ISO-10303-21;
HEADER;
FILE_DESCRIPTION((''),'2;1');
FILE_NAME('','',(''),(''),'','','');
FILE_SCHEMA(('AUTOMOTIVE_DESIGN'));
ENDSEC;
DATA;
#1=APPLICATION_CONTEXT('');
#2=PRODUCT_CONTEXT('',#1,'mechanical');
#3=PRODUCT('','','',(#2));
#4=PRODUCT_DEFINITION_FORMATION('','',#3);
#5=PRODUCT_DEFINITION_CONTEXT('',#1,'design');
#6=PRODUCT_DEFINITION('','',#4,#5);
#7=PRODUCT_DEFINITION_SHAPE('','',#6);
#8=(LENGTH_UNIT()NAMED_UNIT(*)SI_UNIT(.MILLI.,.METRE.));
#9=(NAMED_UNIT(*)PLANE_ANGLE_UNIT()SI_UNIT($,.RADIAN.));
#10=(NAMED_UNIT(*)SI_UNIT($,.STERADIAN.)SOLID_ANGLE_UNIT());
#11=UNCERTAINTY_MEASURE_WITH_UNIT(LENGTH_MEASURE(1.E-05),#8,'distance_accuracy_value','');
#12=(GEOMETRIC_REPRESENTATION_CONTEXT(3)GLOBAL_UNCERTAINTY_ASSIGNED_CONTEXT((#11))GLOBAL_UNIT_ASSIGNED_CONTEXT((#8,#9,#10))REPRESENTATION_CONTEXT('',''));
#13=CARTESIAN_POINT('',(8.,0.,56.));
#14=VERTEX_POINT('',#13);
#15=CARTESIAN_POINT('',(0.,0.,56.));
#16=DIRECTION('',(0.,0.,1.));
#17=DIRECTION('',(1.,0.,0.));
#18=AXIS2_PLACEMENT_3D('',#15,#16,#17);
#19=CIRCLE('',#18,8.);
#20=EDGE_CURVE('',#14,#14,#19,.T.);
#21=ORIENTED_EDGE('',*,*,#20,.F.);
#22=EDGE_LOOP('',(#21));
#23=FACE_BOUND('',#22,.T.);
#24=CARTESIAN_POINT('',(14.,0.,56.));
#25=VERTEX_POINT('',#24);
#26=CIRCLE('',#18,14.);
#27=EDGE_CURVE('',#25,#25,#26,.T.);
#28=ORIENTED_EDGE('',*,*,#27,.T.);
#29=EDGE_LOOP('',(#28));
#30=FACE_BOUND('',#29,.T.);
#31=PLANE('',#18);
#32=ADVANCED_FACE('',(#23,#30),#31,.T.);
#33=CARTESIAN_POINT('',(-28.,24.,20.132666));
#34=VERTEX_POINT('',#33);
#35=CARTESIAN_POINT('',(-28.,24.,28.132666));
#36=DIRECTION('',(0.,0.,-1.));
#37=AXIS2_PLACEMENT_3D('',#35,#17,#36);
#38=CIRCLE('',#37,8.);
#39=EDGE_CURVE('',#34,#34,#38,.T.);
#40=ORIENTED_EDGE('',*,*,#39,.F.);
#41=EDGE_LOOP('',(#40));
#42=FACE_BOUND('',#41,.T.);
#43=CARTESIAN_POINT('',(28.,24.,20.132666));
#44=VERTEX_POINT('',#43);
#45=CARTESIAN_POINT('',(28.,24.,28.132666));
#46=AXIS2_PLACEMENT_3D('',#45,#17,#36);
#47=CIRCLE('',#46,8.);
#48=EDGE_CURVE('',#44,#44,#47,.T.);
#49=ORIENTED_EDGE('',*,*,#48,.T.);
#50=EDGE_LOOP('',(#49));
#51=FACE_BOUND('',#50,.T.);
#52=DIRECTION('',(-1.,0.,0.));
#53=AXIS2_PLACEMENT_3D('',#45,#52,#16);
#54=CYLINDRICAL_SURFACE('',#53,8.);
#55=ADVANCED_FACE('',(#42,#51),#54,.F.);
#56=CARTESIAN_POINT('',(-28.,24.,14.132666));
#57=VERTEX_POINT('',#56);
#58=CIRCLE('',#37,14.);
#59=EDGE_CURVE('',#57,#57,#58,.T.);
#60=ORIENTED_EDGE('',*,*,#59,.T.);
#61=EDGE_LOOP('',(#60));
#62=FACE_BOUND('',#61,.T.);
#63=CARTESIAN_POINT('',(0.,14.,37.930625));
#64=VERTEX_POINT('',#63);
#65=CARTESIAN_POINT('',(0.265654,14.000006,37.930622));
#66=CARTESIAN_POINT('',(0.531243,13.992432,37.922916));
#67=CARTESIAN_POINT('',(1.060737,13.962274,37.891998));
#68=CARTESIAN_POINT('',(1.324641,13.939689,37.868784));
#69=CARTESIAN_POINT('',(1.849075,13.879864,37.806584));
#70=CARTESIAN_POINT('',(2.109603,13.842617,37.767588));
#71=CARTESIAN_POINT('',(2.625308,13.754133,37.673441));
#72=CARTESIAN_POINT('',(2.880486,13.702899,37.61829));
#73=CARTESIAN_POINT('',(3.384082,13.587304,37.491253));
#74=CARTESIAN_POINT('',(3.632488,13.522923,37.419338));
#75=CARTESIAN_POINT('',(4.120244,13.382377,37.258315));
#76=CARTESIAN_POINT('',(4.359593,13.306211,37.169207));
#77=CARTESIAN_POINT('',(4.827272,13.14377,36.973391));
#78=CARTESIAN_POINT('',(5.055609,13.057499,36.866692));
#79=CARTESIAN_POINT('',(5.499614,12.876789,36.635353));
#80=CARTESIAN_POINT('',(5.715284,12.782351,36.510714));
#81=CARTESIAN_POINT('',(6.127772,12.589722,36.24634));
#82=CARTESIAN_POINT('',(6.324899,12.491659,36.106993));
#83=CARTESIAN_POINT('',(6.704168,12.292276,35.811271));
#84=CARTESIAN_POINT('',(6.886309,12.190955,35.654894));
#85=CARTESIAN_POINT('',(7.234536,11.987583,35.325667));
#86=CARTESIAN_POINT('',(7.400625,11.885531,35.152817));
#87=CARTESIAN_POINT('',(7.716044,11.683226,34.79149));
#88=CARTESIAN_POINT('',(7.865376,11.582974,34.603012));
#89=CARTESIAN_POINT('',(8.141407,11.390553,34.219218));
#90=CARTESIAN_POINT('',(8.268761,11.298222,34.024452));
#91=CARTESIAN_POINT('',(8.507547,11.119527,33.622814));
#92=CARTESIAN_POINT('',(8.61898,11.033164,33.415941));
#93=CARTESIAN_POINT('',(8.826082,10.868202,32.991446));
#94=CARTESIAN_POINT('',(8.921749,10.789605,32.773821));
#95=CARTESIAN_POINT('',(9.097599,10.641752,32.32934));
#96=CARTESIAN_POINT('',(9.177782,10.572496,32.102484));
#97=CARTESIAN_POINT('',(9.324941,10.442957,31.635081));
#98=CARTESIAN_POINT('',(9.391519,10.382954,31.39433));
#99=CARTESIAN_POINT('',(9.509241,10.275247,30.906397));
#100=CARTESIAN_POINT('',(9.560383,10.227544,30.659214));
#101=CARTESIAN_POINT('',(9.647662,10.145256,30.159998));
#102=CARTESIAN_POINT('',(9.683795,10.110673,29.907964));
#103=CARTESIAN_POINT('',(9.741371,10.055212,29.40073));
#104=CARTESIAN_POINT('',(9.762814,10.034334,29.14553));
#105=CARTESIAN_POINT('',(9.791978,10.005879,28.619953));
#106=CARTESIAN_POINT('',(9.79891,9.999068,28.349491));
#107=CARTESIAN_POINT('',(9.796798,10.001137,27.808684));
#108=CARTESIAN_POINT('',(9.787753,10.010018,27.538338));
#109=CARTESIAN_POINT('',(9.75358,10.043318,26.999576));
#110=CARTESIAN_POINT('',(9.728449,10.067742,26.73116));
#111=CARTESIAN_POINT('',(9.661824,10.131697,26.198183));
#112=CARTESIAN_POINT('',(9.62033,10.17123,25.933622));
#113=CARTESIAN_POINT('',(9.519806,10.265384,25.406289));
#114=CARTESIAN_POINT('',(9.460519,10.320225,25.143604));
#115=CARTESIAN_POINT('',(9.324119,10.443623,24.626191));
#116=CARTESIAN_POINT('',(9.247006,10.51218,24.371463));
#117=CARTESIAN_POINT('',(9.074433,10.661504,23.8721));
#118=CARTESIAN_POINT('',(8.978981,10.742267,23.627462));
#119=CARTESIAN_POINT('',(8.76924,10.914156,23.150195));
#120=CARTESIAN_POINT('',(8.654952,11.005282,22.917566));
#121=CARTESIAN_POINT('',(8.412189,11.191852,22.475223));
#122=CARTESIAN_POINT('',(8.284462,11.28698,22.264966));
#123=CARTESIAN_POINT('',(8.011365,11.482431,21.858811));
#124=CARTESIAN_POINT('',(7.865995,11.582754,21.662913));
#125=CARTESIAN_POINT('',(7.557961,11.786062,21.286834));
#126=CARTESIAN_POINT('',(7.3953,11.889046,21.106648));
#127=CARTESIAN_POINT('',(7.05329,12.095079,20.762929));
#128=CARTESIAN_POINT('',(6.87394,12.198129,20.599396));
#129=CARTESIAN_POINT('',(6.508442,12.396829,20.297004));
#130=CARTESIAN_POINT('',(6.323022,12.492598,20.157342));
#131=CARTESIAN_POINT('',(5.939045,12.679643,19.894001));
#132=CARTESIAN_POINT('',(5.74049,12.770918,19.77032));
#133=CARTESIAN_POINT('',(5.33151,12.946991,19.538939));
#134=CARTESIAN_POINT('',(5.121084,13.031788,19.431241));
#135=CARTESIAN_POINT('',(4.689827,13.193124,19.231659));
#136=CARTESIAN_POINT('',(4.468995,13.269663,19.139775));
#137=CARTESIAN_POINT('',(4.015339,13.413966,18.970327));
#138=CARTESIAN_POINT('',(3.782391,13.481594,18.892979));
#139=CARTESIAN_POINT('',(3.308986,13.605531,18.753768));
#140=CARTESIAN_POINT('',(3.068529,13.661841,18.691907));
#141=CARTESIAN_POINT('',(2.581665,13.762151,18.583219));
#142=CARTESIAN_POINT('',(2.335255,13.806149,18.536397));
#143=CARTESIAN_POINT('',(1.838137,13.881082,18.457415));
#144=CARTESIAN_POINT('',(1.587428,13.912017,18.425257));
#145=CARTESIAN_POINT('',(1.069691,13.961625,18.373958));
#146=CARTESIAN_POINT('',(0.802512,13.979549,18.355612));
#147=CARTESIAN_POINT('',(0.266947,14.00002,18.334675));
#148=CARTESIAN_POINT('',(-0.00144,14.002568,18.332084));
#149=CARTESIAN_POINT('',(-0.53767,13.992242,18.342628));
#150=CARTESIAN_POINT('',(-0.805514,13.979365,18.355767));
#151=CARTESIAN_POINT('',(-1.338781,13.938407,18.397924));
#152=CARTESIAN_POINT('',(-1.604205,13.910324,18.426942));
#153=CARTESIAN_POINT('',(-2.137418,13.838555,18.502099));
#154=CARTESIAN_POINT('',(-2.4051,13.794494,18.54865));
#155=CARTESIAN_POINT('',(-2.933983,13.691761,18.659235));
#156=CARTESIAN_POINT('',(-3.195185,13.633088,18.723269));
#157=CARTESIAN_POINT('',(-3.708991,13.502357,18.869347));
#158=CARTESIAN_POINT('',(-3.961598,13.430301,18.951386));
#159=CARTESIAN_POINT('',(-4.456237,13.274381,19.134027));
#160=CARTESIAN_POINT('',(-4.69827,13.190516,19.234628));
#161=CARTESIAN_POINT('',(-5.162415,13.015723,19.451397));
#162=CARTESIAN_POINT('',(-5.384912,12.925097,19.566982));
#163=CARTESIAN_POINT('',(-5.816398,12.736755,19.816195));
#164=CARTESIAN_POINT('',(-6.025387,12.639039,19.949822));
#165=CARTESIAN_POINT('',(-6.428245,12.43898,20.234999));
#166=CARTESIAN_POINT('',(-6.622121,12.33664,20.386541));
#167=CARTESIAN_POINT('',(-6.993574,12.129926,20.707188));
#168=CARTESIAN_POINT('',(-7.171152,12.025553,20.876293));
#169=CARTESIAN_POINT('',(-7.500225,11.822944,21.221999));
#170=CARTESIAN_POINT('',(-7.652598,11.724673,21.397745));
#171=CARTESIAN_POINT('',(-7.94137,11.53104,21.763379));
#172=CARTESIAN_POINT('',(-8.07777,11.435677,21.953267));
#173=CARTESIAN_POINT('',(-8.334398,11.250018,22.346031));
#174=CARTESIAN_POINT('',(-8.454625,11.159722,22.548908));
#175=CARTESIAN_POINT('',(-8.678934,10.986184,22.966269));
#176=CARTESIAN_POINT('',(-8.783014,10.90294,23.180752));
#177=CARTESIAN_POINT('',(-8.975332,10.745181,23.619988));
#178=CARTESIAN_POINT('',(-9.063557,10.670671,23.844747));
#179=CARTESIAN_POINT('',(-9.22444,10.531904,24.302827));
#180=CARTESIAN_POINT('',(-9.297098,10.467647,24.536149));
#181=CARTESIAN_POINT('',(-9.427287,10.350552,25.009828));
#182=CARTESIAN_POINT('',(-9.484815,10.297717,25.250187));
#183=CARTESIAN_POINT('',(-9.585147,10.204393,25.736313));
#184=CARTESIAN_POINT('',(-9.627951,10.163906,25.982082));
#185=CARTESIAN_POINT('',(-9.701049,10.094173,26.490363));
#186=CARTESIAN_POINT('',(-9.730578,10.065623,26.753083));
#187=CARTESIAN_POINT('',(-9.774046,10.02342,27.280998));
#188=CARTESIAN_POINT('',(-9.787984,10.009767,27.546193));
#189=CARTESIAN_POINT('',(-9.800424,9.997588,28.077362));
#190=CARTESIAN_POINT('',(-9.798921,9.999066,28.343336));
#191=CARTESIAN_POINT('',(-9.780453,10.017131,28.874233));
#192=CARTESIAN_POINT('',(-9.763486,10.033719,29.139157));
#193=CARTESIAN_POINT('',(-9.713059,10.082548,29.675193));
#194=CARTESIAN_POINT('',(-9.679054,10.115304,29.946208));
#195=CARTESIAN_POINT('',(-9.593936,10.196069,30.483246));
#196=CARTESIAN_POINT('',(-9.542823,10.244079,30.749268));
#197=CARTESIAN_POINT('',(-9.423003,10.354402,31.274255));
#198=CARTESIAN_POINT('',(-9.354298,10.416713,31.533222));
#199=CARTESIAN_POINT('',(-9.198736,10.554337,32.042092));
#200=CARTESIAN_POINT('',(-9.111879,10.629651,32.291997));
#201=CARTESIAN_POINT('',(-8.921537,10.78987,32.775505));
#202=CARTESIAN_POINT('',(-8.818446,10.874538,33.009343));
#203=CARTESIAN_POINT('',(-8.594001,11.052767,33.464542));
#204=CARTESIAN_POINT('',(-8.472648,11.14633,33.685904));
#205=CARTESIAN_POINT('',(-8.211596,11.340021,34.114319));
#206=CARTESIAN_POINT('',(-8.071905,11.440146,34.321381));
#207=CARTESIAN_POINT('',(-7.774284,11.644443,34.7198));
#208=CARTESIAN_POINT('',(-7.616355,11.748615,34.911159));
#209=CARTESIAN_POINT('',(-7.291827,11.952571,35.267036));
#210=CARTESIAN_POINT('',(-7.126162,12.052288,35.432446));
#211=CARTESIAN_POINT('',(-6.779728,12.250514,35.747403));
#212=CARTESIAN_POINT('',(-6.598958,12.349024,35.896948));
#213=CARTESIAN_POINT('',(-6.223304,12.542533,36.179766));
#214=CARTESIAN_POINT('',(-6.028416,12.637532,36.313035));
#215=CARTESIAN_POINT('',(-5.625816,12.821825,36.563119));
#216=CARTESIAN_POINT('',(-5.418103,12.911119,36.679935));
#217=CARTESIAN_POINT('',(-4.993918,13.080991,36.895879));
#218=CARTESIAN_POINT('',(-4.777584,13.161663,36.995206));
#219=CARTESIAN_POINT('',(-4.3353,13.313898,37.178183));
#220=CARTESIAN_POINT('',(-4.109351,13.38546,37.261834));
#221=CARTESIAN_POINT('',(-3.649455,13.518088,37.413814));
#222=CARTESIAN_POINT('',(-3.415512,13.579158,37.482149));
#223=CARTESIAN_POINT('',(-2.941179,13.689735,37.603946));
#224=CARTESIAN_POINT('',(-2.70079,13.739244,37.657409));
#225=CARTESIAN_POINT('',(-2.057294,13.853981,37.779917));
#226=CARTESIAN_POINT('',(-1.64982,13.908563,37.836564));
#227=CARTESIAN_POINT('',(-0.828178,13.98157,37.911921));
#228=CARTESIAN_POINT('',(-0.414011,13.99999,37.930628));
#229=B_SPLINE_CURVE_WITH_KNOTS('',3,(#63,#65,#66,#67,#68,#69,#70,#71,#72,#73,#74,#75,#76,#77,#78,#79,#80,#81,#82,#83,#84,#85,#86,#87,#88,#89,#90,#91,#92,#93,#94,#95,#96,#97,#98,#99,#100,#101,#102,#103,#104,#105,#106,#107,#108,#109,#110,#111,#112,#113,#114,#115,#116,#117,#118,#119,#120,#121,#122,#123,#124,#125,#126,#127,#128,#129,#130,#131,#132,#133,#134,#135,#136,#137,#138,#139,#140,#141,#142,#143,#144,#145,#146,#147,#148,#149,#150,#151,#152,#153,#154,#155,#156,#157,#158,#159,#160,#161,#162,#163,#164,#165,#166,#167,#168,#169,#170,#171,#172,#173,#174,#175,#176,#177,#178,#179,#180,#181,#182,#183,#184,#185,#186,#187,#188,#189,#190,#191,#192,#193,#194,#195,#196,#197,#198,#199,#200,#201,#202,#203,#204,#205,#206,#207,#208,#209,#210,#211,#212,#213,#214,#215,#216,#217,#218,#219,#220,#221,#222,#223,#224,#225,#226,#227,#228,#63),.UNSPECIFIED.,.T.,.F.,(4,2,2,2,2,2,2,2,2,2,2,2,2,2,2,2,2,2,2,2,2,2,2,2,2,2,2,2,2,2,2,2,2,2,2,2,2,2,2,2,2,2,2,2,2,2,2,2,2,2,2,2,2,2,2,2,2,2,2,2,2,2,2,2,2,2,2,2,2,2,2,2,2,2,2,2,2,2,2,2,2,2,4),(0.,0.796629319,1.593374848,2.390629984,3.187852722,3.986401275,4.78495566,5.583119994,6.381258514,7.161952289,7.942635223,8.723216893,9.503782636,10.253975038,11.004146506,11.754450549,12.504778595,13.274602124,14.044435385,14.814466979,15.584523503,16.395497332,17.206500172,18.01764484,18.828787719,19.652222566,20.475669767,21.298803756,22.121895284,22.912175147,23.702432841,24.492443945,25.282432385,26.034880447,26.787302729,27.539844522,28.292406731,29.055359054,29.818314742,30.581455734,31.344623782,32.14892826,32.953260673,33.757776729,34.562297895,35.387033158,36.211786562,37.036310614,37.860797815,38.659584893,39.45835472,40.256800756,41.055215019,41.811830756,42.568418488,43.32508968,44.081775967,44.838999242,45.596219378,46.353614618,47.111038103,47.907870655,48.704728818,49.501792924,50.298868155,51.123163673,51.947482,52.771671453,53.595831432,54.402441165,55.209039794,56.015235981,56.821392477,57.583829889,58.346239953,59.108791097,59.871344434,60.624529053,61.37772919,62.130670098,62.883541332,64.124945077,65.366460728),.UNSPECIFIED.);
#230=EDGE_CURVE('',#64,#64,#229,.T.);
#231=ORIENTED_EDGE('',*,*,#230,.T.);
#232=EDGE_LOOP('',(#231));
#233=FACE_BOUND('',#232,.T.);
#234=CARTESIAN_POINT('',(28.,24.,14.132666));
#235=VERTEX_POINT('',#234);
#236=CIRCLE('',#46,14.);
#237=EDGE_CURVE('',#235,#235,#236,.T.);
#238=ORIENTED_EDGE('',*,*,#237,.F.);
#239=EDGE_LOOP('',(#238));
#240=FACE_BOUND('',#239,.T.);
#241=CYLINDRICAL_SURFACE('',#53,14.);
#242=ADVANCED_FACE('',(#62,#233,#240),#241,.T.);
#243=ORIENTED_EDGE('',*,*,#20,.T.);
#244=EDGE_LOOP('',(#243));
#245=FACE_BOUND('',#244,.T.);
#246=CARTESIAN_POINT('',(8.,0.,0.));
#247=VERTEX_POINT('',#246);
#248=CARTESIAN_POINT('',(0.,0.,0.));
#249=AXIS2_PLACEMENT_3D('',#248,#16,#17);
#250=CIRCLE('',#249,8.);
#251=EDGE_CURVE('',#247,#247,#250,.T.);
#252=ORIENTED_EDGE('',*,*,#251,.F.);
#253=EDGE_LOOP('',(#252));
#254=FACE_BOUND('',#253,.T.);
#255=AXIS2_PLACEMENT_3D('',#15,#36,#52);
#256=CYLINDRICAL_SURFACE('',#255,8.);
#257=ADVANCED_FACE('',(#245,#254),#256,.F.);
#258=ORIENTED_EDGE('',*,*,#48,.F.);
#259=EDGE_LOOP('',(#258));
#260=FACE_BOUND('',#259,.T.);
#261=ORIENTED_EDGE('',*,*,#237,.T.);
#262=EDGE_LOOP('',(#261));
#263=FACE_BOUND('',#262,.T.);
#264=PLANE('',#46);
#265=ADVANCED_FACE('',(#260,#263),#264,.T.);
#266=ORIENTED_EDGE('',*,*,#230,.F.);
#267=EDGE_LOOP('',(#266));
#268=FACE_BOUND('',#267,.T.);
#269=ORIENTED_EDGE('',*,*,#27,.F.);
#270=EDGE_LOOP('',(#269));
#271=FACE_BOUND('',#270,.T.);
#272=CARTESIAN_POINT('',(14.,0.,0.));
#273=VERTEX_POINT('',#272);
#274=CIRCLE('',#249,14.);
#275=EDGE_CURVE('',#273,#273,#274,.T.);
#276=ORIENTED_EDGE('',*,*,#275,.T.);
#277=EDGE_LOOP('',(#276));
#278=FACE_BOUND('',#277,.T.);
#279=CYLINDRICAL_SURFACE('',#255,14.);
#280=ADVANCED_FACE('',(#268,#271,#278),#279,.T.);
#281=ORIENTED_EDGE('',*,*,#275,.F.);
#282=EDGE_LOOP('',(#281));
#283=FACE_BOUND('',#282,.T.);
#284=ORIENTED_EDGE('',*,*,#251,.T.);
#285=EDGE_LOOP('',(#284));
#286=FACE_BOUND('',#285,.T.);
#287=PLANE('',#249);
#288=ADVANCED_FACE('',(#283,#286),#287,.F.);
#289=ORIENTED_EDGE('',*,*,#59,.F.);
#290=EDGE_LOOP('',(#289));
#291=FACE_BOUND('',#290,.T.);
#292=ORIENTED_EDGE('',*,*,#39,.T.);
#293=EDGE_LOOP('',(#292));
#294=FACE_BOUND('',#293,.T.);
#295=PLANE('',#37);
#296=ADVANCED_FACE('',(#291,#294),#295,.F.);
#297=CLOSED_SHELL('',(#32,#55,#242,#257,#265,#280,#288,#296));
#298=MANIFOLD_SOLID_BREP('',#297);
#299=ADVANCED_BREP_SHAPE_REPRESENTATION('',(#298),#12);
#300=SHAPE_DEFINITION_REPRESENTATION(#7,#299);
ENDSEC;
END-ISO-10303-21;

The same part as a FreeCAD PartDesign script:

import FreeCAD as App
import Part
import Sketcher

V = App.Vector
Q = App.Units.Quantity

doc = App.newDocument("Part")
body = doc.addObject("PartDesign::Body", "Body")

# Sketch on XY plane
sketch1 = body.newObject("Sketcher::SketchObject", "Sketch")
sketch1.AttachmentSupport = (doc.getObject("XY_Plane"), [""])
sketch1.MapMode = "FlatFace"
sketch1.addGeometry(Part.Circle(V(0, 0, 0), V(0, 0, 1), 14), False)
sketch1.addGeometry(Part.Circle(V(0, 0, 0), V(0, 0, 1), 8), False)
sketch1.addConstraint(Sketcher.Constraint("Coincident", 0, 3, -1, 1))
sketch1.addConstraint(Sketcher.Constraint("Coincident", 1, 3, -1, 1))
sketch1.addConstraint(Sketcher.Constraint("Diameter", 0, Q("28 mm")))
sketch1.addConstraint(Sketcher.Constraint("Diameter", 1, Q("16 mm")))
pad1 = body.newObject("PartDesign::Pad", "Pad")
pad1.Profile = sketch1
pad1.Length = 56

# Sketch on YZ plane
sketch2 = body.newObject("Sketcher::SketchObject", "Sketch001")
sketch2.AttachmentSupport = (doc.getObject("YZ_Plane"), [""])
sketch2.MapMode = "FlatFace"
sketch2.addGeometry(Part.Circle(V(24, 28, 0), V(0, 0, 1), 14), False)
sketch2.addGeometry(Part.Circle(V(24, 28, 0), V(0, 0, 1), 8), False)
sketch2.addConstraint(Sketcher.Constraint("Coincident", 1, 3, 0, 3))
sketch2.addConstraint(Sketcher.Constraint("Diameter", 0, Q("28 mm")))
sketch2.addConstraint(Sketcher.Constraint("Diameter", 1, Q("16 mm")))
sketch2.addConstraint(Sketcher.Constraint("DistanceX", -1, 1, 0, 3, Q("24 mm")))
sketch2.addConstraint(Sketcher.Constraint("DistanceY", -1, 1, 0, 3, Q("28.132666 mm")))
pad2 = body.newObject("PartDesign::Pad", "Pad001")
pad2.Profile = sketch2
pad2.Length = 56
pad2.Midplane = True

doc.recompute()
